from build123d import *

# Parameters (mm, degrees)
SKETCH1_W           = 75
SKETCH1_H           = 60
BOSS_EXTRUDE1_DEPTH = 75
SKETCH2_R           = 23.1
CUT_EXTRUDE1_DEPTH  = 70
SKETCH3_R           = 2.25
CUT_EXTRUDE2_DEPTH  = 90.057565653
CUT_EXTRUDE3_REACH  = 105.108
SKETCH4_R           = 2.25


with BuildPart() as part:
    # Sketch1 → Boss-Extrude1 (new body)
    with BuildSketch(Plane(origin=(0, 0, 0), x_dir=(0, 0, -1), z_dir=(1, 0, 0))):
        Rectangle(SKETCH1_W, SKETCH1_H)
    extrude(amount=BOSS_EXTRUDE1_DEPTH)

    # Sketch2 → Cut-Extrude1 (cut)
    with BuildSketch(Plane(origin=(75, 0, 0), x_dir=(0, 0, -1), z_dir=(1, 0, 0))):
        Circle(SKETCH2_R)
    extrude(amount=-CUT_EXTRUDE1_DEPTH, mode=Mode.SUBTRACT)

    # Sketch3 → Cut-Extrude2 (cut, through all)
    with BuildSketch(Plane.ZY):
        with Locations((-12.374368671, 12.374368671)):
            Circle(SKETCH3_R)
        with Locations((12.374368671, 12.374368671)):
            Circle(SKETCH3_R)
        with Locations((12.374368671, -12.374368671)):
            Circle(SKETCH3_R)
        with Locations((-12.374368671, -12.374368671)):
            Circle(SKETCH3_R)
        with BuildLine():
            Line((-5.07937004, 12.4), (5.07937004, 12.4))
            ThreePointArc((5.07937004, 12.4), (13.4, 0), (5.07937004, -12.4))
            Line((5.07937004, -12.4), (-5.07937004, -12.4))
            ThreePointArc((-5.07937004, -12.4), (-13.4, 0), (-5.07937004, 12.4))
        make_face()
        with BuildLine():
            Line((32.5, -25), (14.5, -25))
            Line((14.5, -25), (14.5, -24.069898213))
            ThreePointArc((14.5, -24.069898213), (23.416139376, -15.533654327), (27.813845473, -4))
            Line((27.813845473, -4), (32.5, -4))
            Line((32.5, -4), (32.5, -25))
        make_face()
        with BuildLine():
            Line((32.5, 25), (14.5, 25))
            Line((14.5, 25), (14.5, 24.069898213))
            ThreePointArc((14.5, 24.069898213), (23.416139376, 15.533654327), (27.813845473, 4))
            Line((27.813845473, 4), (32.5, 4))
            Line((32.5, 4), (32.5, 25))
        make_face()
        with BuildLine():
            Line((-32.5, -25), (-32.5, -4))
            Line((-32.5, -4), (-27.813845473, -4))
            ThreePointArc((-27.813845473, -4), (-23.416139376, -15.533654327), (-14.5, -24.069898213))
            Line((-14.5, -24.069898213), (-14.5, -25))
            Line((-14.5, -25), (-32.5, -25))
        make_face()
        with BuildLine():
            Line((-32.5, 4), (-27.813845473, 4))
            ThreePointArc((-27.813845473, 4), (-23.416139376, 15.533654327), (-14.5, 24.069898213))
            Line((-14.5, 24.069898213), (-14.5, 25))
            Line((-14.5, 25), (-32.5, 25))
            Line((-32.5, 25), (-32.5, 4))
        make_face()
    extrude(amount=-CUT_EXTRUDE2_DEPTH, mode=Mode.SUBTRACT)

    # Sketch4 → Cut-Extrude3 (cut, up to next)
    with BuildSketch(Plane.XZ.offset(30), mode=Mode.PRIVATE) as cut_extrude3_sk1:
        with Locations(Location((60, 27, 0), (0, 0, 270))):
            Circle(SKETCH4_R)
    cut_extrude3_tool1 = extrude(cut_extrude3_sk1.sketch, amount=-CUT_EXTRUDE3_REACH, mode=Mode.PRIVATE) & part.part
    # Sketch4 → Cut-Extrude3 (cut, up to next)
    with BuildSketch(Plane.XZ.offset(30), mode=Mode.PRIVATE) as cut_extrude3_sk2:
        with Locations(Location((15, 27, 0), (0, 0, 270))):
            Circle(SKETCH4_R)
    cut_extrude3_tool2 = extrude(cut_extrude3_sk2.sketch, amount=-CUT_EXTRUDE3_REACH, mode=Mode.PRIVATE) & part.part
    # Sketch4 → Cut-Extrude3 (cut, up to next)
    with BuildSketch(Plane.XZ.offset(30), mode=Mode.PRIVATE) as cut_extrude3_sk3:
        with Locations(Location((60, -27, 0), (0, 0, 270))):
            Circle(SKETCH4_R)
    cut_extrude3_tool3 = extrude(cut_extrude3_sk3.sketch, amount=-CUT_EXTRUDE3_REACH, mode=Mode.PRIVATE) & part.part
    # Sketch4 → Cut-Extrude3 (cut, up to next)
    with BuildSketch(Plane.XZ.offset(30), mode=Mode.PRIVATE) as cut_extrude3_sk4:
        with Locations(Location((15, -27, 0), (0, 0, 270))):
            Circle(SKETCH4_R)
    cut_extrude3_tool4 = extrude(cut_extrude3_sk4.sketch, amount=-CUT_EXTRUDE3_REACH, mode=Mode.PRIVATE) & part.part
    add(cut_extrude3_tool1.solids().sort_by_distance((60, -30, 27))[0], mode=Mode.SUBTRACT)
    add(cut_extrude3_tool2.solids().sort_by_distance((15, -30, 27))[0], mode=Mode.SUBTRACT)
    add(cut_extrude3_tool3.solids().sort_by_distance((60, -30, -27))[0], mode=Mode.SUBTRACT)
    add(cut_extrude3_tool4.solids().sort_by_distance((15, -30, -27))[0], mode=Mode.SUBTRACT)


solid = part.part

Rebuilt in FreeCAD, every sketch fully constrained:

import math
import FreeCAD as App
import Part
import Sketcher
from FreeCAD import Vector


def add_polygon(sketch, points):
    """Adds a closed chain of lines whose ends are joined by coincident constraints."""
    first, n = sketch.GeometryCount, len(points)
    for a, b in zip(points, points[1:] + points[:1]):
        sketch.addGeometry(Part.LineSegment(App.Vector(*a, 0), App.Vector(*b, 0)), False)
    for i in range(n):
        sketch.addConstraint(Sketcher.Constraint("Coincident", first + i, 2, first + (i + 1) % n, 1))

doc = App.newDocument("Part")
body = doc.addObject("PartDesign::Body", "Body")

# Sketch on YZ plane
sketch1 = doc.addObject("Sketcher::SketchObject", "Sketch")
body.addObject(sketch1)
sketch1.AttachmentSupport = (doc.YZ_Plane, [""])
sketch1.MapMode = "FlatFace"
add_polygon(sketch1, [(30, 37.5), (-30, 37.5), (-30, -37.5), (30, -37.5)])  # lines 0-3
sketch1.addConstraint([
    Sketcher.Constraint("Horizontal", 0),
    Sketcher.Constraint("Vertical", 1),
    Sketcher.Constraint("Horizontal", 2),
    Sketcher.Constraint("Vertical", 3),
    Sketcher.Constraint("Symmetric", 0, 2, 2, 2, -1, 1),
    Sketcher.Constraint("DistanceX", 0, 2, 0, 1, 60.0),
    Sketcher.Constraint("DistanceY", 1, 2, 1, 1, 75.0),
])
pad1 = doc.addObject("PartDesign::Pad", "Pad")
body.addObject(pad1)
pad1.Profile = sketch1
pad1.Length = 75

# Sketch on YZ plane
sketch2 = doc.addObject("Sketcher::SketchObject", "Sketch001")
body.addObject(sketch2)
sketch2.AttachmentSupport = (doc.YZ_Plane, [""])
sketch2.MapMode = "FlatFace"
sketch2.AttachmentOffset = App.Placement(Vector(0, 0, 75), App.Rotation())
sketch2.addGeometry(Part.Circle(Vector(0, 0, 0), Vector(0, 0, 1), 23.1), False)
sketch2.addConstraint([
    Sketcher.Constraint("Coincident", 0, 3, -1, 1),
    Sketcher.Constraint("Diameter", 0, 46.2),
])
pocket1 = doc.addObject("PartDesign::Pocket", "Pocket")
body.addObject(pocket1)
pocket1.Profile = sketch2
pocket1.Length = 70

# Sketch on YZ plane
sketch3 = doc.addObject("Sketcher::SketchObject", "Sketch002")
body.addObject(sketch3)
sketch3.AttachmentSupport = (doc.YZ_Plane, [""])
sketch3.MapMode = "FlatFace"
sketch3.addGeometry([
    Part.Circle(Vector(12.374369, -12.374369, 0), Vector(0, 0, 1), 2.25),  # 0
    Part.Circle(Vector(12.374369, 12.374369, 0), Vector(0, 0, 1), 2.25),  # 1
    Part.Circle(Vector(-12.374369, 12.374369, 0), Vector(0, 0, 1), 2.25),  # 2
    Part.Circle(Vector(-12.374369, -12.374369, 0), Vector(0, 0, 1), 2.25),  # 3
    Part.LineSegment(Vector(12.4, 5.07937, 0), Vector(12.4, -5.07937, 0)),  # 4
    Part.ArcOfCircle(Part.Circle(Vector(0, 0, 0), Vector(0, 0, 1), 13.4), math.radians(-157.724688), math.radians(-22.275312)),  # 5
    Part.LineSegment(Vector(-12.4, -5.07937, 0), Vector(-12.4, 5.07937, 0)),  # 6
    Part.ArcOfCircle(Part.Circle(Vector(0, 0, 0), Vector(0, 0, 1), 13.4), math.radians(22.275312), math.radians(157.724688)),  # 7
    Part.LineSegment(Vector(-25, 14.5, 0), Vector(-25, 32.5, 0)),  # 8
    Part.LineSegment(Vector(-25, 32.5, 0), Vector(-4, 32.5, 0)),  # 9
    Part.LineSegment(Vector(-4, 32.5, 0), Vector(-4, 27.813845, 0)),  # 10
    Part.ArcOfCircle(Part.Circle(Vector(0, 0, 0), Vector(0, 0, 1), 28.1), math.radians(98.183781), math.radians(148.934728)),  # 11
    Part.LineSegment(Vector(-24.069898, 14.5, 0), Vector(-25, 14.5, 0)),  # 12
    Part.LineSegment(Vector(25, 32.5, 0), Vector(25, 14.5, 0)),  # 13
    Part.LineSegment(Vector(25, 14.5, 0), Vector(24.069898, 14.5, 0)),  # 14
    Part.ArcOfCircle(Part.Circle(Vector(0, 0, 0), Vector(0, 0, 1), 28.1), math.radians(31.065272), math.radians(81.816219)),  # 15
    Part.LineSegment(Vector(4, 27.813845, 0), Vector(4, 32.5, 0)),  # 16
    Part.LineSegment(Vector(4, 32.5, 0), Vector(25, 32.5, 0)),  # 17
    Part.LineSegment(Vector(-4, -32.5, 0), Vector(-25, -32.5, 0)),  # 18
    Part.LineSegment(Vector(-25, -32.5, 0), Vector(-25, -14.5, 0)),  # 19
    Part.LineSegment(Vector(-25, -14.5, 0), Vector(-24.069898, -14.5, 0)),  # 20
    Part.ArcOfCircle(Part.Circle(Vector(0, 0, 0), Vector(0, 0, 1), 28.1), math.radians(-148.934728), math.radians(-98.183781)),  # 21
    Part.LineSegment(Vector(-4, -27.813845, 0), Vector(-4, -32.5, 0)),  # 22
    Part.LineSegment(Vector(4, -32.5, 0), Vector(4, -27.813845, 0)),  # 23
    Part.ArcOfCircle(Part.Circle(Vector(0, 0, 0), Vector(0, 0, 1), 28.1), math.radians(-81.816219), math.radians(-31.065272)),  # 24
    Part.LineSegment(Vector(24.069898, -14.5, 0), Vector(25, -14.5, 0)),  # 25
    Part.LineSegment(Vector(25, -14.5, 0), Vector(25, -32.5, 0)),  # 26
    Part.LineSegment(Vector(25, -32.5, 0), Vector(4, -32.5, 0)),  # 27
], False)
sketch3.addConstraint([
    Sketcher.Constraint("Coincident", 4, 2, 5, 2),
    Sketcher.Constraint("Coincident", 5, 1, 6, 1),
    Sketcher.Constraint("Coincident", 6, 2, 7, 2),
    Sketcher.Constraint("Coincident", 7, 1, 4, 1),
    Sketcher.Constraint("Coincident", 8, 2, 9, 1),
    Sketcher.Constraint("Coincident", 9, 2, 10, 1),
    Sketcher.Constraint("Coincident", 10, 2, 11, 1),
    Sketcher.Constraint("Coincident", 11, 2, 12, 1),
    Sketcher.Constraint("Coincident", 12, 2, 8, 1),
    Sketcher.Constraint("Coincident", 13, 2, 14, 1),
    Sketcher.Constraint("Coincident", 14, 2, 15, 1),
    Sketcher.Constraint("Coincident", 15, 2, 16, 1),
    Sketcher.Constraint("Coincident", 16, 2, 17, 1),
    Sketcher.Constraint("Coincident", 17, 2, 13, 1),
    Sketcher.Constraint("Coincident", 18, 2, 19, 1),
    Sketcher.Constraint("Coincident", 19, 2, 20, 1),
    Sketcher.Constraint("Coincident", 20, 2, 21, 1),
    Sketcher.Constraint("Coincident", 21, 2, 22, 1),
    Sketcher.Constraint("Coincident", 22, 2, 18, 1),
    Sketcher.Constraint("Coincident", 23, 2, 24, 1),
    Sketcher.Constraint("Coincident", 24, 2, 25, 1),
    Sketcher.Constraint("Coincident", 25, 2, 26, 1),
    Sketcher.Constraint("Coincident", 26, 2, 27, 1),
    Sketcher.Constraint("Coincident", 27, 2, 23, 1),
    Sketcher.Constraint("Vertical", 4),
    Sketcher.Constraint("Vertical", 6),
    Sketcher.Constraint("Vertical", 8),
    Sketcher.Constraint("Horizontal", 9),
    Sketcher.Constraint("Vertical", 10),
    Sketcher.Constraint("Horizontal", 12),
    Sketcher.Constraint("Vertical", 13),
    Sketcher.Constraint("Horizontal", 14),
    Sketcher.Constraint("Vertical", 16),
    Sketcher.Constraint("Horizontal", 17),
    Sketcher.Constraint("Horizontal", 18),
    Sketcher.Constraint("Vertical", 19),
    Sketcher.Constraint("Horizontal", 20),
    Sketcher.Constraint("Vertical", 22),
    Sketcher.Constraint("Vertical", 23),
    Sketcher.Constraint("Horizontal", 25),
    Sketcher.Constraint("Vertical", 26),
    Sketcher.Constraint("Horizontal", 27),
    Sketcher.Constraint("Coincident", 5, 3, -1, 1),
    Sketcher.Constraint("Coincident", 7, 3, -1, 1),
    Sketcher.Constraint("Coincident", 11, 3, -1, 1),
    Sketcher.Constraint("Coincident", 15, 3, -1, 1),
    Sketcher.Constraint("Coincident", 21, 3, -1, 1),
    Sketcher.Constraint("Coincident", 24, 3, -1, 1),
    Sketcher.Constraint("Equal", 0, 1),
    Sketcher.Constraint("Equal", 1, 2),
    Sketcher.Constraint("Equal", 2, 3),
    Sketcher.Constraint("Equal", 5, 7),
    Sketcher.Constraint("Equal", 11, 15),
    Sketcher.Constraint("Equal", 15, 21),
    Sketcher.Constraint("Equal", 21, 24),
    Sketcher.Constraint("Symmetric", 0, 3, 2, 3, -1, 1),
    Sketcher.Constraint("Symmetric", 1, 3, 3, 3, -1, 1),
    Sketcher.Constraint("Symmetric", 17, 2, 18, 2, -1, 1),
    Sketcher.Constraint("Symmetric", 12, 2, 25, 2, -1, 1),
    Sketcher.Constraint("Symmetric", 9, 2, 27, 2, -1, 1),
    Sketcher.Constraint("Symmetric", 1, 3, 2, 3, -2),
    Sketcher.Constraint("Symmetric", 12, 2, 13, 2, -2),
    Sketcher.Constraint("Symmetric", 9, 2, 16, 2, -2),
    Sketcher.Constraint("Horizontal", 4, 2, 5, 1),
    Sketcher.Constraint("Horizontal", 21, 2, 23, 2),
    Sketcher.Constraint("Horizontal", 20, 2, 24, 2),
    Sketcher.Constraint("Diameter", 0, 4.5),
    Sketcher.Constraint("Radius", 5, 13.4),
    Sketcher.Constraint("Radius", 11, 28.1),
    Sketcher.Constraint("DistanceX", 9, 1, 9, 2, 21.0),
    Sketcher.Constraint("DistanceY", 8, 1, 8, 2, 18.0),
    Sketcher.Constraint("DistanceX", 8, 2, -1, 1, 25.0),
    Sketcher.Constraint("DistanceX", -1, 1, 4, 2, 12.4),
    Sketcher.Constraint("DistanceY", -1, 1, 8, 2, 32.5),
    Sketcher.Constraint("DistanceY", 0, 3, 4, 2, 7.294999),
    Sketcher.Constraint("DistanceX", -1, 1, 0, 3, 12.374369),
])
pocket2 = doc.addObject("PartDesign::Pocket", "Pocket001")
body.addObject(pocket2)
pocket2.Profile = sketch3
pocket2.Type = "ThroughAll"
pocket2.Reversed = True

# Sketch on XZ plane
sketch4 = doc.addObject("Sketcher::SketchObject", "Sketch003")
body.addObject(sketch4)
sketch4.AttachmentSupport = (doc.XZ_Plane, [""])
sketch4.MapMode = "FlatFace"
sketch4.AttachmentOffset = App.Placement(Vector(0, 0, 30), App.Rotation())
sketch4.addGeometry(Part.Circle(Vector(60, 27, 0), Vector(0, 0, 1), 2.25), False)
sketch4.addConstraint([
    Sketcher.Constraint("Diameter", 0, 4.5),
    Sketcher.Constraint("DistanceX", -1, 1, 0, 3, 60.0),
    Sketcher.Constraint("DistanceY", -1, 1, 0, 3, 27.0),
])
pocket3 = doc.addObject("PartDesign::Pocket", "Pocket002")
body.addObject(pocket3)
pocket3.Profile = sketch4
pocket3.Type = "UpToFirst"

# Sketch on XZ plane
sketch5 = doc.addObject("Sketcher::SketchObject", "Sketch004")
body.addObject(sketch5)
sketch5.AttachmentSupport = (doc.XZ_Plane, [""])
sketch5.MapMode = "FlatFace"
sketch5.AttachmentOffset = App.Placement(Vector(0, 0, 30), App.Rotation())
sketch5.addGeometry(Part.Circle(Vector(15, 27, 0), Vector(0, 0, 1), 2.25), False)
sketch5.addConstraint([
    Sketcher.Constraint("Diameter", 0, 4.5),
    Sketcher.Constraint("DistanceX", -1, 1, 0, 3, 15.0),
    Sketcher.Constraint("DistanceY", -1, 1, 0, 3, 27.0),
])
pocket4 = doc.addObject("PartDesign::Pocket", "Pocket003")
body.addObject(pocket4)
pocket4.Profile = sketch5
pocket4.Type = "UpToFirst"

# Sketch on XZ plane
sketch6 = doc.addObject("Sketcher::SketchObject", "Sketch005")
body.addObject(sketch6)
sketch6.AttachmentSupport = (doc.XZ_Plane, [""])
sketch6.MapMode = "FlatFace"
sketch6.AttachmentOffset = App.Placement(Vector(0, 0, 30), App.Rotation())
sketch6.addGeometry(Part.Circle(Vector(60, -27, 0), Vector(0, 0, 1), 2.25), False)
sketch6.addConstraint([
    Sketcher.Constraint("Diameter", 0, 4.5),
    Sketcher.Constraint("DistanceX", -1, 1, 0, 3, 60.0),
    Sketcher.Constraint("DistanceY", 0, 3, -1, 1, 27.0),
])
pocket5 = doc.addObject("PartDesign::Pocket", "Pocket004")
body.addObject(pocket5)
pocket5.Profile = sketch6
pocket5.Type = "UpToFirst"

# Sketch on XZ plane
sketch7 = doc.addObject("Sketcher::SketchObject", "Sketch006")
body.addObject(sketch7)
sketch7.AttachmentSupport = (doc.XZ_Plane, [""])
sketch7.MapMode = "FlatFace"
sketch7.AttachmentOffset = App.Placement(Vector(0, 0, 30), App.Rotation())
sketch7.addGeometry(Part.Circle(Vector(15, -27, 0), Vector(0, 0, 1), 2.25), False)
sketch7.addConstraint([
    Sketcher.Constraint("Diameter", 0, 4.5),
    Sketcher.Constraint("DistanceX", -1, 1, 0, 3, 15.0),
    Sketcher.Constraint("DistanceY", 0, 3, -1, 1, 27.0),
])
pocket6 = doc.addObject("PartDesign::Pocket", "Pocket005")
body.addObject(pocket6)
pocket6.Profile = sketch7
pocket6.Type = "UpToFirst"

doc.recompute()
